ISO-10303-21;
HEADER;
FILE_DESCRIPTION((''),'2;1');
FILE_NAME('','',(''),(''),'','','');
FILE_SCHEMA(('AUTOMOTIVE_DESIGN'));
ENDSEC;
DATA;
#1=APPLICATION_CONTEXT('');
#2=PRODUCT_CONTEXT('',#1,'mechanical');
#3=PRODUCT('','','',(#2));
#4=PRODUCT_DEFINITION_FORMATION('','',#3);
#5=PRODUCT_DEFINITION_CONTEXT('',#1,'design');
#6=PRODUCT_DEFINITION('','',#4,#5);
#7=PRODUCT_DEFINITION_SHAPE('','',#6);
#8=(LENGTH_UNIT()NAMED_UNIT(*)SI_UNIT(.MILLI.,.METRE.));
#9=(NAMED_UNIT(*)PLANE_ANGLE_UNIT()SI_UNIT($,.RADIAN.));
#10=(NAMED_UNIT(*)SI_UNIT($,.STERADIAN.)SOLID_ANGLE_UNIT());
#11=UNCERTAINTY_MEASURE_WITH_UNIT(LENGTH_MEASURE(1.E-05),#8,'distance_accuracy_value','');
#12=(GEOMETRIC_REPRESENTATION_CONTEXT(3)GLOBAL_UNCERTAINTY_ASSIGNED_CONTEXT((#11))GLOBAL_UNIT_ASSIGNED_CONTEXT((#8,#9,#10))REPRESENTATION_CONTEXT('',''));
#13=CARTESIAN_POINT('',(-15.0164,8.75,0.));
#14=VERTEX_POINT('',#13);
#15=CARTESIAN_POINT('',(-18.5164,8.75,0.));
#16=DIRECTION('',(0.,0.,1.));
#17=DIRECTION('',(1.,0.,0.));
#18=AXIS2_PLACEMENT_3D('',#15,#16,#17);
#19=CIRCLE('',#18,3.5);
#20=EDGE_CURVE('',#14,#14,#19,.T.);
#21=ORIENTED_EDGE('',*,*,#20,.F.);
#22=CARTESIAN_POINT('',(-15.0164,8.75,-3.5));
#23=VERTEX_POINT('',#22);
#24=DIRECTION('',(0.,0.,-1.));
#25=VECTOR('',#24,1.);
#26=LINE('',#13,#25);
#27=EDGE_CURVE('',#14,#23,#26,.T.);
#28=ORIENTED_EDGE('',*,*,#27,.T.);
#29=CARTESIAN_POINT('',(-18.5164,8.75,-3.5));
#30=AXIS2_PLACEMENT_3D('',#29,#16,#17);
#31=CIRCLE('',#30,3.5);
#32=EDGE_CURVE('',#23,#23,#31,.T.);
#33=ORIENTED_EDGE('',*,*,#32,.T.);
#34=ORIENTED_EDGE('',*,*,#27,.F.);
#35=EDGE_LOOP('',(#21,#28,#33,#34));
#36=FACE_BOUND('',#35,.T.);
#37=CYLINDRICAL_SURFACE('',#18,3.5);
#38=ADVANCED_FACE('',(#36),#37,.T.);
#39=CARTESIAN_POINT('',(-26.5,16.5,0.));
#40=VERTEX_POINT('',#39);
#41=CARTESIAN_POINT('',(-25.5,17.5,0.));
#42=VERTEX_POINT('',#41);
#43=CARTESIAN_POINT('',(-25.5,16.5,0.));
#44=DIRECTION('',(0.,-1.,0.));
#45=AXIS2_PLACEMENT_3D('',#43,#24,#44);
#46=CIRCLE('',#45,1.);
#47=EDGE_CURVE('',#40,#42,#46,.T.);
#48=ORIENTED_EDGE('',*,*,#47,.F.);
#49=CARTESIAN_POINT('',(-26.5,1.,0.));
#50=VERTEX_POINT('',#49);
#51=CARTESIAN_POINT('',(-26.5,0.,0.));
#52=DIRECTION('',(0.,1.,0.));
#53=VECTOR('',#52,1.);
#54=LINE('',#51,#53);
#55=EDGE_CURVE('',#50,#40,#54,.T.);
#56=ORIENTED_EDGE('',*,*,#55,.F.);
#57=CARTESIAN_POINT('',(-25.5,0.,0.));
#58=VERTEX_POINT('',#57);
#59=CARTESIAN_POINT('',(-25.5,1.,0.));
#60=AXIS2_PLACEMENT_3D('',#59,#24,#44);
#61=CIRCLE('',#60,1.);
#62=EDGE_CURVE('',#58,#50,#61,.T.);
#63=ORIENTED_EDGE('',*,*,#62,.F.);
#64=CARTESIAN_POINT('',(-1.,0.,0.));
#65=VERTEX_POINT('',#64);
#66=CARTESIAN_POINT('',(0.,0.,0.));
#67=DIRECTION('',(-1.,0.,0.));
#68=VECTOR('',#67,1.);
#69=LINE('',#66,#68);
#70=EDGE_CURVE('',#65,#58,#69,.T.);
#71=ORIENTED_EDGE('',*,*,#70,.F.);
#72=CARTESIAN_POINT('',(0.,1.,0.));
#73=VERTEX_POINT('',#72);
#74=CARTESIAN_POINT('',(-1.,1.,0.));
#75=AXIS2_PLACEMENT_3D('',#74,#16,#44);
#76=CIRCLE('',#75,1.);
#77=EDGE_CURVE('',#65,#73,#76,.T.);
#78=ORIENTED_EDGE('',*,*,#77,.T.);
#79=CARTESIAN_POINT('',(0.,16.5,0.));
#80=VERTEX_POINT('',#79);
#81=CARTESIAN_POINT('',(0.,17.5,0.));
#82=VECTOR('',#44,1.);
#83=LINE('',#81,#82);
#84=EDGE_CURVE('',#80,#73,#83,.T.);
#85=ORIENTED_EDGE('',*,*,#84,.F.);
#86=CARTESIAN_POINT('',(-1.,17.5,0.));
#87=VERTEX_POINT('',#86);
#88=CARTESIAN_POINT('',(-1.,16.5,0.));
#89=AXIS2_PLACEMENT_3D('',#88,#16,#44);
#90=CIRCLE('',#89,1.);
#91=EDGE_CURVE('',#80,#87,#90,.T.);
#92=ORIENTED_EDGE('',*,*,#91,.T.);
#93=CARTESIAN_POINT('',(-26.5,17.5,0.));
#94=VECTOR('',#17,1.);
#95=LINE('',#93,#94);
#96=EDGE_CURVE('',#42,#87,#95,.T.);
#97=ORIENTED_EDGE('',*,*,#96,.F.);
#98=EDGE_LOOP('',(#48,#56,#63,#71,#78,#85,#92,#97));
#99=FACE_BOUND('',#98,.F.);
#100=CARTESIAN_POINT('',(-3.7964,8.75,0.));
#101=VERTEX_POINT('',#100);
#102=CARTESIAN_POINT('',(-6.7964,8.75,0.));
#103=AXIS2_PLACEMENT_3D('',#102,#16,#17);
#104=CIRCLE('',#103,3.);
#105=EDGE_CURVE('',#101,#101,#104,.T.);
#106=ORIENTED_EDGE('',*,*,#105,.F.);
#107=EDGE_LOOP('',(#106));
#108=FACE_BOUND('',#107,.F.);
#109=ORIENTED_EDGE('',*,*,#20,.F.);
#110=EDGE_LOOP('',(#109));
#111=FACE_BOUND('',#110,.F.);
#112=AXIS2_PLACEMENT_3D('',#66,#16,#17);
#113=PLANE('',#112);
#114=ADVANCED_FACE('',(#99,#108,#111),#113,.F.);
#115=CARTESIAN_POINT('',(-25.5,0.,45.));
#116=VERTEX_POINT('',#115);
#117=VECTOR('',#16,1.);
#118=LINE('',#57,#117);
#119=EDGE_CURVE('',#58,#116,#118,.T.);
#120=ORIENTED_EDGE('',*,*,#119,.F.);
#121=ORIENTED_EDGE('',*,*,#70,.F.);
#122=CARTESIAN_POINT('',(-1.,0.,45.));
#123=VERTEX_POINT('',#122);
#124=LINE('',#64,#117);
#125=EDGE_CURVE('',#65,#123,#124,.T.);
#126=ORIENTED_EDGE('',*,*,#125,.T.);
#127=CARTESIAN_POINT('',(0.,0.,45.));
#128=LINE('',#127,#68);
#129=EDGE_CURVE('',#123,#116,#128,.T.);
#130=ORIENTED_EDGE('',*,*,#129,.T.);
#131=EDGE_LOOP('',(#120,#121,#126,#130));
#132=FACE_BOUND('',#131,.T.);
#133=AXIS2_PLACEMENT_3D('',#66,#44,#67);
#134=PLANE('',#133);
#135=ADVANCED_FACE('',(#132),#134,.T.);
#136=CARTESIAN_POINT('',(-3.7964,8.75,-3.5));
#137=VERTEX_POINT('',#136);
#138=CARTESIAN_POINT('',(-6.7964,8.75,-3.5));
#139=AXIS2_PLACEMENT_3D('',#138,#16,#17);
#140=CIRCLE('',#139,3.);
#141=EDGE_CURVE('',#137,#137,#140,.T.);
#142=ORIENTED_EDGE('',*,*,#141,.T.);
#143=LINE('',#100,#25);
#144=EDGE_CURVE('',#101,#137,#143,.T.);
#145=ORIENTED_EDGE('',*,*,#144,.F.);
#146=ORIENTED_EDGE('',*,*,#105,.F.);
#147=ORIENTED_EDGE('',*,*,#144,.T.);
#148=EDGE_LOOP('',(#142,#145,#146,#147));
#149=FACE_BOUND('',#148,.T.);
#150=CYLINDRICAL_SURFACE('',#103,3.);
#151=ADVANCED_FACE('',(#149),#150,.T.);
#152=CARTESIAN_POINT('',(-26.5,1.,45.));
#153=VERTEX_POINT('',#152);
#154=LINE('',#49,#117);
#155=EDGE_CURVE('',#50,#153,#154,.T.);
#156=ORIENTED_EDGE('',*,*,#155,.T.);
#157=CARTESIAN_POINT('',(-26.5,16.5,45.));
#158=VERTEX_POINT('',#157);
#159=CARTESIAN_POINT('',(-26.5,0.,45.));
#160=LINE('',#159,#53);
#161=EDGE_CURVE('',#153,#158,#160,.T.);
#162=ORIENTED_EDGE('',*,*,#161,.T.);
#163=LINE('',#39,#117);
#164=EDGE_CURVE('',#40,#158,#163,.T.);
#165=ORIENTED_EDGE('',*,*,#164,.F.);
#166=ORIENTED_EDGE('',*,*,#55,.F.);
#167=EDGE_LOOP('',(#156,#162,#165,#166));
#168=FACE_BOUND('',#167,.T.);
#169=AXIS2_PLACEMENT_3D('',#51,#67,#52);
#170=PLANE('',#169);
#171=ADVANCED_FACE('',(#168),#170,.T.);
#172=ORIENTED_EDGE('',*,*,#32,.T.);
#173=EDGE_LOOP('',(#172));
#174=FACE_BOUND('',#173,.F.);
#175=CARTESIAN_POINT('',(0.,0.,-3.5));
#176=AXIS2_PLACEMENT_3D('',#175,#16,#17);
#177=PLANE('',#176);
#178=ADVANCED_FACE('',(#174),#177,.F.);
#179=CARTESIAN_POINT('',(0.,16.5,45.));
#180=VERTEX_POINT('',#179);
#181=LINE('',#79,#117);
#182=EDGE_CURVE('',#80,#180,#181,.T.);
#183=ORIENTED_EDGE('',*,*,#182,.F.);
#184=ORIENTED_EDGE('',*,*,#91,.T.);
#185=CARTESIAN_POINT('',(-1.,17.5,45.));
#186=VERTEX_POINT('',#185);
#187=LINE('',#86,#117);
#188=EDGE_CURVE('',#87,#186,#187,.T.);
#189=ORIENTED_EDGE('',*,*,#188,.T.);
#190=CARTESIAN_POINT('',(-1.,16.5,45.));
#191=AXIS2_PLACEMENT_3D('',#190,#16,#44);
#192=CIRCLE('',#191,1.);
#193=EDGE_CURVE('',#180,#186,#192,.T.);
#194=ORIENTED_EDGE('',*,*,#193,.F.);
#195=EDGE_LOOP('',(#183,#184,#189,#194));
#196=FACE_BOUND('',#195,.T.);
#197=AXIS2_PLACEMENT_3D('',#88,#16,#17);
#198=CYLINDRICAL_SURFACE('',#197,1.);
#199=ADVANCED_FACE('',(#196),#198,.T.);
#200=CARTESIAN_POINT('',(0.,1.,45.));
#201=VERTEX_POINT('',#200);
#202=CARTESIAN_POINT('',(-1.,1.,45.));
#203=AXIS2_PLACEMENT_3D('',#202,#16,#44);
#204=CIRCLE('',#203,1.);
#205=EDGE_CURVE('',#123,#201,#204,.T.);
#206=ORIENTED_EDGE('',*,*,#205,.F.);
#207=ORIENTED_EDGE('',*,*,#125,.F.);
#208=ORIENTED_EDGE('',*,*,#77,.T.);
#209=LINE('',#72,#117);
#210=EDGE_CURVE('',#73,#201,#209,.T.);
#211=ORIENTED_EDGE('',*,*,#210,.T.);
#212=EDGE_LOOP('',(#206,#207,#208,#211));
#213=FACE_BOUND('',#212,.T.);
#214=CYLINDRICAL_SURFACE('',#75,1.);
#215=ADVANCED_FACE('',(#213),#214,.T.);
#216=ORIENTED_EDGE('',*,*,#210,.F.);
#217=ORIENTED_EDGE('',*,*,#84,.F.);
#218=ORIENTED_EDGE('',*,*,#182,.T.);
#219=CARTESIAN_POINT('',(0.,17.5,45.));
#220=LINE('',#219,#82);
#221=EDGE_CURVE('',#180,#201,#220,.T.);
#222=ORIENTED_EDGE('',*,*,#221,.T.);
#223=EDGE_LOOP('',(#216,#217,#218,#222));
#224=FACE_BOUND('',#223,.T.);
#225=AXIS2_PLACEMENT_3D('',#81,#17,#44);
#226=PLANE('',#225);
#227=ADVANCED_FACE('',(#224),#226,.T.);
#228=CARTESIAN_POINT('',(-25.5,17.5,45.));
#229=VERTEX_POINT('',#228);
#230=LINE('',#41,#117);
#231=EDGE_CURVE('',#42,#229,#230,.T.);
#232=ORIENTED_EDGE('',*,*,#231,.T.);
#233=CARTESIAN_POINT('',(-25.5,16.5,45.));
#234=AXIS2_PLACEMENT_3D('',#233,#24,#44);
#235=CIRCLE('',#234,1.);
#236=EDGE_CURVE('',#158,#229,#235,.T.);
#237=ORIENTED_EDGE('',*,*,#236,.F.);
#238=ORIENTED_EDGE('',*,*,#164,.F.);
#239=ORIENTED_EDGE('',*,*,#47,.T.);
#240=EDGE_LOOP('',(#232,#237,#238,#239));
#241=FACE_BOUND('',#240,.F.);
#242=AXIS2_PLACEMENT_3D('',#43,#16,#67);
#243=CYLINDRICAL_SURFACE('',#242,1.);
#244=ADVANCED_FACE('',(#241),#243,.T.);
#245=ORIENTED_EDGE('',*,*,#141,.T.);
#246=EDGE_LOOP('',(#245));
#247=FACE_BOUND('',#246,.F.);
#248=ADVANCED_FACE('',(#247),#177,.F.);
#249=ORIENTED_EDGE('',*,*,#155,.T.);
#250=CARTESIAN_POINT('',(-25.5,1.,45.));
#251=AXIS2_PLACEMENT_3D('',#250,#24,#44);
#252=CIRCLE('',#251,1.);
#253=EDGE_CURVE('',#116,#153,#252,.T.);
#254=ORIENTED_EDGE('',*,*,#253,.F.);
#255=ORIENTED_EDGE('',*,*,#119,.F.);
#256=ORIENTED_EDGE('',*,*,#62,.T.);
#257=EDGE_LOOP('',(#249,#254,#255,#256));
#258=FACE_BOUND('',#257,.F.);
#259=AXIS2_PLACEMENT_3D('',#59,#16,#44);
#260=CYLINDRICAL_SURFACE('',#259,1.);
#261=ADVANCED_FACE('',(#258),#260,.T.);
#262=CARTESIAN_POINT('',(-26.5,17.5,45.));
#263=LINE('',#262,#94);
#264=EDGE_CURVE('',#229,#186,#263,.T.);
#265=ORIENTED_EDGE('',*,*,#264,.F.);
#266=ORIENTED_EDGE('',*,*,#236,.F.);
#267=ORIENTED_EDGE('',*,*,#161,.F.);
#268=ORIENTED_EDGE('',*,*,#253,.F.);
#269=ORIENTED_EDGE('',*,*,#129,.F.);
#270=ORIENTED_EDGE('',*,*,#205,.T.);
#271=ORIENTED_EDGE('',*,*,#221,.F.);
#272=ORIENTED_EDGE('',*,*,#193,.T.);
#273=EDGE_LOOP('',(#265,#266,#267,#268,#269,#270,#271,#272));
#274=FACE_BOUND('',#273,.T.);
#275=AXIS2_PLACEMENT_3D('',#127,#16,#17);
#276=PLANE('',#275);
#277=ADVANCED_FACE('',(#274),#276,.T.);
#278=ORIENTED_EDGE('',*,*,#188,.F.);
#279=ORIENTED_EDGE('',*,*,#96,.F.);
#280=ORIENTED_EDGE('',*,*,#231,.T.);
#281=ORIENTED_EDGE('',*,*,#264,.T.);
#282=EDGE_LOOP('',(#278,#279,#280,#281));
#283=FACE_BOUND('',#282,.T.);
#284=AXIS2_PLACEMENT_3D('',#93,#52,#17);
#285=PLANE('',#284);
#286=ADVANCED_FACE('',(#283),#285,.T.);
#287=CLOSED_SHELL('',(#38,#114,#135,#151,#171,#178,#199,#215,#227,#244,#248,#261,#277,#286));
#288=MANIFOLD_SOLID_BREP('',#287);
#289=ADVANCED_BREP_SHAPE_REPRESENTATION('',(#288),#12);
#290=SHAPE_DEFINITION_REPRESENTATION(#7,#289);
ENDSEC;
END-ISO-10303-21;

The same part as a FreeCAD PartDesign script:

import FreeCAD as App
import Part
import Sketcher
from FreeCAD import Vector


def edges_at(feature, points):
    """Names of the edges that pass closest to the given points."""
    edges = feature.Shape.Edges
    near = lambda p: min(range(len(edges)), key=lambda i: edges[i].distToShape(Part.Vertex(*p))[0])
    return sorted({f"Edge{near(p) + 1}" for p in points})


def add_polygon(sketch, points):
    """Adds a closed chain of lines whose ends are joined by coincident constraints."""
    first, n = sketch.GeometryCount, len(points)
    for a, b in zip(points, points[1:] + points[:1]):
        sketch.addGeometry(Part.LineSegment(App.Vector(*a, 0), App.Vector(*b, 0)), False)
    for i in range(n):
        sketch.addConstraint(Sketcher.Constraint("Coincident", first + i, 2, first + (i + 1) % n, 1))

doc = App.newDocument("Part")
body = doc.addObject("PartDesign::Body", "Body")

# Sketch on XY plane
sketch1 = body.newObject("Sketcher::SketchObject", "Sketch")
sketch1.AttachmentSupport = (doc.getObject("XY_Plane"), [""])
sketch1.MapMode = "FlatFace"
add_polygon(sketch1, [(-26, 0), (0, 0), (0, 18), (-26, 18)])  # lines 0-3
sketch1.addConstraint([
    Sketcher.Constraint("Horizontal", 0),
    Sketcher.Constraint("Vertical", 1),
    Sketcher.Constraint("Horizontal", 2),
    Sketcher.Constraint("Vertical", 3),
    Sketcher.Constraint("Coincident", 0, 2, -1, 1),
    Sketcher.Constraint("DistanceX", 0, 1, 0, 2, 26.5),
    Sketcher.Constraint("DistanceY", 1, 1, 1, 2, 17.5),
])
pad1 = body.newObject("PartDesign::Pad", "Pad")
pad1.Profile = sketch1
pad1.Length = 45

# Sketch on XY plane
sketch2 = body.newObject("Sketcher::SketchObject", "Sketch001")
sketch2.AttachmentSupport = (doc.getObject("XY_Plane"), [""])
sketch2.MapMode = "FlatFace"
sketch2.addGeometry([
    Part.Circle(Vector(-18.5, 8.8, 0), Vector(0, 0, 1), 3.5),
    Part.Circle(Vector(-6.8, 8.8, 0), Vector(0, 0, 1), 3),
], False)
sketch2.addConstraint([
    Sketcher.Constraint("Horizontal", 0, 3, 1, 3),
    Sketcher.Constraint("Diameter", 0, 7.0),
    Sketcher.Constraint("Diameter", 1, 6.0),
    Sketcher.Constraint("DistanceY", -1, 1, 0, 3, 8.75),
    Sketcher.Constraint("DistanceX", 0, 3, 1, 3, 11.72),
    Sketcher.Constraint("DistanceX", 0, 3, -1, 1, 18.5164),
])
pad2 = body.newObject("PartDesign::Pad", "Pad001")
pad2.Profile = sketch2
pad2.Length = 3.5
pad2.Reversed = True
doc.recompute()

fillet = body.newObject("PartDesign::Fillet", "Fillet")
fillet.Base = (pad2, edges_at(pad2, [
    (-26.5, 17.5, 22.5),
    (-26.5, 0, 22.5),
    (0, 17.5, 22.5),
    (0, 0, 22.5),
]))
fillet.Radius = 1

doc.recompute()
